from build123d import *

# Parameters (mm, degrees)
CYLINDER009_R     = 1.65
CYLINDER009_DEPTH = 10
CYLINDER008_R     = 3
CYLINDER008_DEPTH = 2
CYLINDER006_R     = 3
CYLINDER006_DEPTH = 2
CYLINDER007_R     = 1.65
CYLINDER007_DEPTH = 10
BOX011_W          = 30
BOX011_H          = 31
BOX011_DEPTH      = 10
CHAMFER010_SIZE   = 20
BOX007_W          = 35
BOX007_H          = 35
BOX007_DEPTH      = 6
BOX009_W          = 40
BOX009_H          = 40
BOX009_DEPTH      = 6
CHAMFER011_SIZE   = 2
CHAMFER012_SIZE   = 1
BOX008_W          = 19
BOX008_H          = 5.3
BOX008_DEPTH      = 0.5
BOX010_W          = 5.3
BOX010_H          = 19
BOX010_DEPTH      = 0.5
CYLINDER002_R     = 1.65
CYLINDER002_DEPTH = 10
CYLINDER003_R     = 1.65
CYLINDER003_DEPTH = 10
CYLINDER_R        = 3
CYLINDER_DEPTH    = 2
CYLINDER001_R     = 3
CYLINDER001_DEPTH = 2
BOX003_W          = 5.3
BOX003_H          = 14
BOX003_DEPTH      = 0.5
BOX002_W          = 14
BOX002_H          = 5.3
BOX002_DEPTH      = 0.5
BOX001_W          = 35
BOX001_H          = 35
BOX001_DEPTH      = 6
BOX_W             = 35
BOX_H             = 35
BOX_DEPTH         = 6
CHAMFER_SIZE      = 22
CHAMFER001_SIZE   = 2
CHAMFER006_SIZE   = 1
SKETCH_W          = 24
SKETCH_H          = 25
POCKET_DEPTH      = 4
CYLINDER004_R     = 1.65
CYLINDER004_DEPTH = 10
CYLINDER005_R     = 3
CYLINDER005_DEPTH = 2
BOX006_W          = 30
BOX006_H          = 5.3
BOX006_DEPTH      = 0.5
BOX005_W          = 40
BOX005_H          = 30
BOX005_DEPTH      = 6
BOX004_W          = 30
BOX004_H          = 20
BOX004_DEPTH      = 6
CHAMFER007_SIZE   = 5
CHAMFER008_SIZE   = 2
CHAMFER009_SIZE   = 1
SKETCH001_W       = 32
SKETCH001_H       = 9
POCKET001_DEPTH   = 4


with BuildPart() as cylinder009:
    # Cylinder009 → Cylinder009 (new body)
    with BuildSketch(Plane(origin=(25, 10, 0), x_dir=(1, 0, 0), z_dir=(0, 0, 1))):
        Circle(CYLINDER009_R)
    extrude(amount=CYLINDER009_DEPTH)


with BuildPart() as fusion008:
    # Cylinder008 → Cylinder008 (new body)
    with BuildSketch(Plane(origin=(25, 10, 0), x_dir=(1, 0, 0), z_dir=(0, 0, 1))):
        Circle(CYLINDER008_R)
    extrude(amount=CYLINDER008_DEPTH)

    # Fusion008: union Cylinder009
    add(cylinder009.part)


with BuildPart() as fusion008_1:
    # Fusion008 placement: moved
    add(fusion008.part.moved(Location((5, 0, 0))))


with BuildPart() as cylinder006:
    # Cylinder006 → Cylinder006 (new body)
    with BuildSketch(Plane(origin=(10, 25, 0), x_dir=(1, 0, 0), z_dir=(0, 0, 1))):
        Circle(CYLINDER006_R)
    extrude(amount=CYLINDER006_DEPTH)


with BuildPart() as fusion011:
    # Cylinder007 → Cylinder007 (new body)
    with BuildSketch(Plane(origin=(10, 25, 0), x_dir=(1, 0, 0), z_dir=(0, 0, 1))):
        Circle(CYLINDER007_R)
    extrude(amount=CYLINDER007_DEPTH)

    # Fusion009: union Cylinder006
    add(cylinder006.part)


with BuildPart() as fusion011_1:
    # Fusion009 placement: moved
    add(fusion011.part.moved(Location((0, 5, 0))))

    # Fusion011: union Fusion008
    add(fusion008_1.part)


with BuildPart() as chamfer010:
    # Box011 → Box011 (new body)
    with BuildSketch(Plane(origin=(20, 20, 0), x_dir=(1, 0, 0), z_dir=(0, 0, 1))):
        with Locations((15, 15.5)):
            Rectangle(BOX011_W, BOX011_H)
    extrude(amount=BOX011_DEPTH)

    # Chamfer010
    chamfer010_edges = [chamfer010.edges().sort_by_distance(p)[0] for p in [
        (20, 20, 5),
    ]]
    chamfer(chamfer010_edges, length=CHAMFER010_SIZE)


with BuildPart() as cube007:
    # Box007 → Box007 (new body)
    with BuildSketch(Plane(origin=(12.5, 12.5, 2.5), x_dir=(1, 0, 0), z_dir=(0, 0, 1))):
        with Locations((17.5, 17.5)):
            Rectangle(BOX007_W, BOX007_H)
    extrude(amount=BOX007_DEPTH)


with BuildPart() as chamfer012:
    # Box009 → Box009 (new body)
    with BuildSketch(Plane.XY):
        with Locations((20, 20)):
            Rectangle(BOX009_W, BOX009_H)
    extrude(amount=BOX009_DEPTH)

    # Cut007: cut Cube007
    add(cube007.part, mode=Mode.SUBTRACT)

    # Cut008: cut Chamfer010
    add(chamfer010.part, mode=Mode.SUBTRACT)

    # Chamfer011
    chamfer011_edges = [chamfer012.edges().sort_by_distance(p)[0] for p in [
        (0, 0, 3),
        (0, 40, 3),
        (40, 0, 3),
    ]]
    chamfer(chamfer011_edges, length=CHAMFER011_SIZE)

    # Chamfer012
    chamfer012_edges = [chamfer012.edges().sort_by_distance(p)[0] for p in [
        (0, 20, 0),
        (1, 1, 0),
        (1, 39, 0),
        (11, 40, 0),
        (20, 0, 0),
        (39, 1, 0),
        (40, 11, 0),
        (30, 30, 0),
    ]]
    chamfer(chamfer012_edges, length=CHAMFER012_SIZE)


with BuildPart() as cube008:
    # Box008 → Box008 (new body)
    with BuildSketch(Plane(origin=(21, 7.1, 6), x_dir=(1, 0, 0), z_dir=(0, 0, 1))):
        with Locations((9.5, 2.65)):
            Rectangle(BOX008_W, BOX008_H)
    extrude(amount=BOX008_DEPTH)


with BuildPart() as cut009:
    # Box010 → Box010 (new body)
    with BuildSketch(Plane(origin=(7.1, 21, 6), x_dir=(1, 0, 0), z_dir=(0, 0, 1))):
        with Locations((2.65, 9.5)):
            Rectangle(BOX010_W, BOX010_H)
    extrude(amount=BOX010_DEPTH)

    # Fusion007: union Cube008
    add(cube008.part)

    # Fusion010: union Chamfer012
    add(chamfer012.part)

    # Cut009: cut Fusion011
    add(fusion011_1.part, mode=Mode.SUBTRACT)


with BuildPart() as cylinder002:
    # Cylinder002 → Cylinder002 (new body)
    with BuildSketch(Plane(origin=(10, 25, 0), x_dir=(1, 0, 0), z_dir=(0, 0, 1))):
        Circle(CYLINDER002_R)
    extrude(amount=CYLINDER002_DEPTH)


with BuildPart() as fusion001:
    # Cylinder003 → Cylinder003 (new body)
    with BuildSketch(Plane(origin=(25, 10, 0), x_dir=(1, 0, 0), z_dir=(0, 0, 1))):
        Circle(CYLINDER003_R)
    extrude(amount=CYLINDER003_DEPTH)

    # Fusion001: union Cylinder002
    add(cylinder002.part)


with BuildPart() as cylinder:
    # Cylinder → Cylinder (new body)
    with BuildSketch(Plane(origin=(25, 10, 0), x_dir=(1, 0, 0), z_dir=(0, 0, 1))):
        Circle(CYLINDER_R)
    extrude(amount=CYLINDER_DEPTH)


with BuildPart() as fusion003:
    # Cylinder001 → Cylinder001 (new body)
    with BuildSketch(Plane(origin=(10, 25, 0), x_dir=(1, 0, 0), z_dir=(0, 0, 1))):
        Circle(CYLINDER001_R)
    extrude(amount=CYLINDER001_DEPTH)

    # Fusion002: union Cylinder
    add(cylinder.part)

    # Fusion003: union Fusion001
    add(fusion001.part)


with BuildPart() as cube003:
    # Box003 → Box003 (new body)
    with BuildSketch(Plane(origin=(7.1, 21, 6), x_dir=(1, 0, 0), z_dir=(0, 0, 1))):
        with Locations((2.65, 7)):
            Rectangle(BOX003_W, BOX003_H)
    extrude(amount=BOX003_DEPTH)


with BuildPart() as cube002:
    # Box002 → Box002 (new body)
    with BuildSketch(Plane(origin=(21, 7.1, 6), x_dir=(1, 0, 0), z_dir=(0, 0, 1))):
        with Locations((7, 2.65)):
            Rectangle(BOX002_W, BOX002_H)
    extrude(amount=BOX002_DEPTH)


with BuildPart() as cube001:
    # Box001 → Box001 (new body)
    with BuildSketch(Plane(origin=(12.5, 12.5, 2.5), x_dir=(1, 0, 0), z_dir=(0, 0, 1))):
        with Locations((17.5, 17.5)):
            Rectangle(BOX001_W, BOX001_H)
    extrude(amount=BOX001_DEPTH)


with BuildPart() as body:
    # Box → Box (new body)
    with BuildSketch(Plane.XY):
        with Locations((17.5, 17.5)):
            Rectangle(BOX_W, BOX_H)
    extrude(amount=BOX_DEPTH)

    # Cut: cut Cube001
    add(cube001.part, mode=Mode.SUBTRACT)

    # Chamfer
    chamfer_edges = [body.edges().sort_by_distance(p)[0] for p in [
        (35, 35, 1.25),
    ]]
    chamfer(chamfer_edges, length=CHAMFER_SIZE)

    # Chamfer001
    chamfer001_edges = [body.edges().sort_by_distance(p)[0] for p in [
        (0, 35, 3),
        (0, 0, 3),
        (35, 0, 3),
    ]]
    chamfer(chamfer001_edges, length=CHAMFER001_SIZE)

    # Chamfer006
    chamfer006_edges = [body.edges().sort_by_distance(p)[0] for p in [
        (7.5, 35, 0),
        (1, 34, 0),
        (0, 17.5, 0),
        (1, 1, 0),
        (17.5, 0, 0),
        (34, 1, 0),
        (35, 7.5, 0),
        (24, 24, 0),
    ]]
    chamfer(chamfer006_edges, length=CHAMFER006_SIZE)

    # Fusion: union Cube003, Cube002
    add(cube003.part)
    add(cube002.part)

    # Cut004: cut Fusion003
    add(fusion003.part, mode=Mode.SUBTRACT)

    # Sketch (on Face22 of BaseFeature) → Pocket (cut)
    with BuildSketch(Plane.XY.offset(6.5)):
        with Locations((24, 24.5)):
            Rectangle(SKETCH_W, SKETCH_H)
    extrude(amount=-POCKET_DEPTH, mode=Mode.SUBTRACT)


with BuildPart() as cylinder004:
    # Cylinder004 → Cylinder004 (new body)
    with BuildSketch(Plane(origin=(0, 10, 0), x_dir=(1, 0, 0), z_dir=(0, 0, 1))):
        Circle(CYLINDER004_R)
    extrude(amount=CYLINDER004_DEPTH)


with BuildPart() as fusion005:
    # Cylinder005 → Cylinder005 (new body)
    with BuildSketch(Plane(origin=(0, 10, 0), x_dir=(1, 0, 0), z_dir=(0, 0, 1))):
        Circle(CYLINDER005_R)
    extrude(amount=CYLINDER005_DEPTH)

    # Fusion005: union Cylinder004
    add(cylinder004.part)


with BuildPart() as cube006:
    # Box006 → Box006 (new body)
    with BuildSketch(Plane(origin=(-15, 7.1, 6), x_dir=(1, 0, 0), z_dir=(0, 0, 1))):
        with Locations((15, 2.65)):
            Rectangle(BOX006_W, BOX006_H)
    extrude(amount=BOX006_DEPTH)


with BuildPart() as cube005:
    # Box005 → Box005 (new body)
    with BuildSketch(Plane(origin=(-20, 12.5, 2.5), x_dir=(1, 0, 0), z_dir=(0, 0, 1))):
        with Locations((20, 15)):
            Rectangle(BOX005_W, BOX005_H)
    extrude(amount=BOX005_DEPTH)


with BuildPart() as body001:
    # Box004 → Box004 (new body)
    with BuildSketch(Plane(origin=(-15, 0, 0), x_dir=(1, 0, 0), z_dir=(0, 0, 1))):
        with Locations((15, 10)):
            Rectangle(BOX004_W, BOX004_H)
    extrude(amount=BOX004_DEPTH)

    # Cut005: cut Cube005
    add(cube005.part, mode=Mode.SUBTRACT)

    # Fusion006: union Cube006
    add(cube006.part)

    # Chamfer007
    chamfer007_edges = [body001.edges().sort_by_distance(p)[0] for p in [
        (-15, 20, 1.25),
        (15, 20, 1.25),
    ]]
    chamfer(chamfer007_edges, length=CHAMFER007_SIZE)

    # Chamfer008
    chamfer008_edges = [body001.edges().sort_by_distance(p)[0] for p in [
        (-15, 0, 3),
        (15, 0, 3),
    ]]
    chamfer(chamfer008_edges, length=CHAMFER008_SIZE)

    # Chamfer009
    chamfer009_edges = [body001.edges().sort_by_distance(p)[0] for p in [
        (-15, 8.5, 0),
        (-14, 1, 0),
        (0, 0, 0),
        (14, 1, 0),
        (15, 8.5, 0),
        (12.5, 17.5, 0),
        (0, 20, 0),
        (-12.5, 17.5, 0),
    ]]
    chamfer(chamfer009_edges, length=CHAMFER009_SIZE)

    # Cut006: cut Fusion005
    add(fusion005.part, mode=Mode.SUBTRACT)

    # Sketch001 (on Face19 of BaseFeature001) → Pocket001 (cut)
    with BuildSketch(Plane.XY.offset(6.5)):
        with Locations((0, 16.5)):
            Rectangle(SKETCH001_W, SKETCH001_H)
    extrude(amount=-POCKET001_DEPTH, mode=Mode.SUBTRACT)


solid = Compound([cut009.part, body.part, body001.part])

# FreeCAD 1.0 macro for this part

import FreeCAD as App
import Part
import Sketcher
from FreeCAD import Vector
Q = App.Units.Quantity


def edges_at(feature, points):
    """Names of the edges that pass closest to the given points."""
    edges = feature.Shape.Edges
    near = lambda p: min(range(len(edges)), key=lambda i: edges[i].distToShape(Part.Vertex(*p))[0])
    return sorted({f"Edge{near(p) + 1}" for p in points})


def add_polygon(sketch, points):
    """Adds a closed chain of lines whose ends are joined by coincident constraints."""
    first, n = sketch.GeometryCount, len(points)
    for a, b in zip(points, points[1:] + points[:1]):
        sketch.addGeometry(Part.LineSegment(App.Vector(*a, 0), App.Vector(*b, 0)), False)
    for i in range(n):
        sketch.addConstraint(Sketcher.Constraint("Coincident", first + i, 2, first + (i + 1) % n, 1))

doc = App.newDocument("Part")
body = doc.addObject("PartDesign::Body", "Body")

# Sketch on XY plane
sketch1 = doc.addObject("Sketcher::SketchObject", "Sketch")
body.addObject(sketch1)
sketch1.AttachmentSupport = (doc.XY_Plane, [""])
sketch1.MapMode = "FlatFace"
sketch1.addGeometry(Part.Circle(Vector(25, 10, 0), Vector(0, 0, 1), 1.6), False)
sketch1.addConstraint(Sketcher.Constraint("Diameter", 0, Q("3.3 mm")))
sketch1.addConstraint(Sketcher.Constraint("DistanceX", -1, 1, 0, 3, Q("25 mm")))
sketch1.addConstraint(Sketcher.Constraint("DistanceY", -1, 1, 0, 3, Q("10 mm")))
pad1 = doc.addObject("PartDesign::Pad", "Pad")
body.addObject(pad1)
pad1.Profile = sketch1
pad1.Length = 10
body2 = doc.addObject("PartDesign::Body", "Body001")

# Sketch on XY plane
sketch2 = doc.addObject("Sketcher::SketchObject", "Sketch001")
body2.addObject(sketch2)
sketch2.AttachmentSupport = (doc.getObject("XY_Plane001"), [""])
sketch2.MapMode = "FlatFace"
sketch2.addGeometry(Part.Circle(Vector(25, 10, 0), Vector(0, 0, 1), 3), False)
sketch2.addConstraint(Sketcher.Constraint("Diameter", 0, Q("6 mm")))
sketch2.addConstraint(Sketcher.Constraint("DistanceX", -1, 1, 0, 3, Q("25 mm")))
sketch2.addConstraint(Sketcher.Constraint("DistanceY", -1, 1, 0, 3, Q("10 mm")))
pad2 = doc.addObject("PartDesign::Pad", "Pad001")
body2.addObject(pad2)
pad2.Profile = sketch2
pad2.Length = 2
doc.recompute()

boolean = doc.addObject("PartDesign::Boolean", "Boolean")
body2.addObject(boolean)
boolean.Type = "Fuse"
boolean.addObjects([body])
body3 = doc.addObject("PartDesign::Body", "Body002")
doc.recompute()

body2.Placement = App.Placement(Vector(5, 0, 0), App.Rotation(Vector(0, 0, 1), 0))
boolean2 = doc.addObject("PartDesign::Boolean", "Boolean001")
body3.addObject(boolean2)
boolean2.Type = "Fuse"
boolean2.addObjects([body2])
body4 = doc.addObject("PartDesign::Body", "Body003")

# Sketch on XY plane
sketch3 = doc.addObject("Sketcher::SketchObject", "Sketch002")
body4.addObject(sketch3)
sketch3.AttachmentSupport = (doc.getObject("XY_Plane003"), [""])
sketch3.MapMode = "FlatFace"
sketch3.addGeometry(Part.Circle(Vector(10, 25, 0), Vector(0, 0, 1), 3), False)
sketch3.addConstraint(Sketcher.Constraint("Diameter", 0, Q("6 mm")))
sketch3.addConstraint(Sketcher.Constraint("DistanceX", -1, 1, 0, 3, Q("10 mm")))
sketch3.addConstraint(Sketcher.Constraint("DistanceY", -1, 1, 0, 3, Q("25 mm")))
pad3 = doc.addObject("PartDesign::Pad", "Pad002")
body4.addObject(pad3)
pad3.Profile = sketch3
pad3.Length = 2
body5 = doc.addObject("PartDesign::Body", "Body004")

# Sketch on XY plane
sketch4 = doc.addObject("Sketcher::SketchObject", "Sketch003")
body5.addObject(sketch4)
sketch4.AttachmentSupport = (doc.getObject("XY_Plane004"), [""])
sketch4.MapMode = "FlatFace"
sketch4.addGeometry(Part.Circle(Vector(10, 25, 0), Vector(0, 0, 1), 1.6), False)
sketch4.addConstraint(Sketcher.Constraint("Diameter", 0, Q("3.3 mm")))
sketch4.addConstraint(Sketcher.Constraint("DistanceX", -1, 1, 0, 3, Q("10 mm")))
sketch4.addConstraint(Sketcher.Constraint("DistanceY", -1, 1, 0, 3, Q("25 mm")))
pad4 = doc.addObject("PartDesign::Pad", "Pad003")
body5.addObject(pad4)
pad4.Profile = sketch4
pad4.Length = 10
doc.recompute()

boolean3 = doc.addObject("PartDesign::Boolean", "Boolean002")
body5.addObject(boolean3)
boolean3.Type = "Fuse"
boolean3.addObjects([body4])
body6 = doc.addObject("PartDesign::Body", "Body005")
body6.AllowCompound = True
doc.recompute()

body5.Placement = App.Placement(Vector(0, 5, 0), App.Rotation(Vector(0, 0, 1), 0))
boolean4 = doc.addObject("PartDesign::Boolean", "Boolean003")
body6.addObject(boolean4)
boolean4.Type = "Fuse"
boolean4.addObjects([body5])
doc.recompute()

boolean5 = doc.addObject("PartDesign::Boolean", "Boolean004")
body6.addObject(boolean5)
boolean5.Type = "Fuse"
boolean5.addObjects([body3])
body7 = doc.addObject("PartDesign::Body", "Body006")

# Sketch on XY plane
sketch5 = doc.addObject("Sketcher::SketchObject", "Sketch004")
body7.addObject(sketch5)
sketch5.AttachmentSupport = (doc.getObject("XY_Plane006"), [""])
sketch5.MapMode = "FlatFace"
add_polygon(sketch5, [(20, 51), (20, 20), (50, 20), (50, 51)])  # lines 0-3
sketch5.addConstraint(Sketcher.Constraint("Vertical", 0))
sketch5.addConstraint(Sketcher.Constraint("Horizontal", 1))
sketch5.addConstraint(Sketcher.Constraint("Vertical", 2))
sketch5.addConstraint(Sketcher.Constraint("Horizontal", 3))
sketch5.addConstraint(Sketcher.Constraint("DistanceX", 1, 1, 1, 2, Q("30 mm")))
sketch5.addConstraint(Sketcher.Constraint("DistanceY", 0, 2, 0, 1, Q("31 mm")))
sketch5.addConstraint(Sketcher.Constraint("DistanceX", -1, 1, 0, 2, Q("20 mm")))
sketch5.addConstraint(Sketcher.Constraint("DistanceY", -1, 1, 0, 2, Q("20 mm")))
pad5 = doc.addObject("PartDesign::Pad", "Pad004")
body7.addObject(pad5)
pad5.Profile = sketch5
pad5.Length = 10
doc.recompute()

chamfer = doc.addObject("PartDesign::Chamfer", "Chamfer")
body7.addObject(chamfer)
chamfer.Base = (pad5, edges_at(pad5, [(20, 20, 5)]))
chamfer.Size = 20
body8 = doc.addObject("PartDesign::Body", "Body007")

# Sketch on XY plane
sketch6 = doc.addObject("Sketcher::SketchObject", "Sketch005")
body8.addObject(sketch6)
sketch6.AttachmentSupport = (doc.getObject("XY_Plane007"), [""])
sketch6.MapMode = "FlatFace"
sketch6.AttachmentOffset = App.Placement(Vector(0, 0, 2.5), App.Rotation())
add_polygon(sketch6, [(12, 48), (12, 12), (48, 12), (48, 48)])  # lines 0-3
sketch6.addConstraint(Sketcher.Constraint("Vertical", 0))
sketch6.addConstraint(Sketcher.Constraint("Horizontal", 1))
sketch6.addConstraint(Sketcher.Constraint("Vertical", 2))
sketch6.addConstraint(Sketcher.Constraint("Horizontal", 3))
sketch6.addConstraint(Sketcher.Constraint("Equal", 3, 0))
sketch6.addConstraint(Sketcher.Constraint("DistanceX", 1, 1, 1, 2, Q("35 mm")))
sketch6.addConstraint(Sketcher.Constraint("DistanceX", -1, 1, 0, 2, Q("12.5 mm")))
sketch6.addConstraint(Sketcher.Constraint("DistanceY", -1, 1, 0, 2, Q("12.5 mm")))
pad6 = doc.addObject("PartDesign::Pad", "Pad005")
body8.addObject(pad6)
pad6.Profile = sketch6
pad6.Length = 6
body9 = doc.addObject("PartDesign::Body", "Body008")

# Sketch on XY plane
sketch7 = doc.addObject("Sketcher::SketchObject", "Sketch006")
body9.addObject(sketch7)
sketch7.AttachmentSupport = (doc.getObject("XY_Plane008"), [""])
sketch7.MapMode = "FlatFace"
add_polygon(sketch7, [(0, 40), (0, 0), (40, 0), (40, 40)])  # lines 0-3
sketch7.addConstraint(Sketcher.Constraint("Vertical", 0))
sketch7.addConstraint(Sketcher.Constraint("Horizontal", 1))
sketch7.addConstraint(Sketcher.Constraint("Vertical", 2))
sketch7.addConstraint(Sketcher.Constraint("Horizontal", 3))
sketch7.addConstraint(Sketcher.Constraint("Coincident", 0, 2, -1, 1))
sketch7.addConstraint(Sketcher.Constraint("Equal", 3, 0))
sketch7.addConstraint(Sketcher.Constraint("DistanceX", 1, 1, 1, 2, Q("40 mm")))
pad7 = doc.addObject("PartDesign::Pad", "Pad006")
body9.addObject(pad7)
pad7.Profile = sketch7
pad7.Length = 6
doc.recompute()

boolean6 = doc.addObject("PartDesign::Boolean", "Boolean005")
body9.addObject(boolean6)
boolean6.Type = "Cut"
boolean6.addObjects([body8])
doc.recompute()

boolean7 = doc.addObject("PartDesign::Boolean", "Boolean006")
body9.addObject(boolean7)
boolean7.Type = "Cut"
boolean7.addObjects([body7])
doc.recompute()

chamfer2 = doc.addObject("PartDesign::Chamfer", "Chamfer001")
body9.addObject(chamfer2)
chamfer2.Base = (boolean7, edges_at(boolean7, [(0, 0, 3), (0, 40, 3), (40, 0, 3)]))
chamfer2.Size = 2
doc.recompute()

chamfer3 = doc.addObject("PartDesign::Chamfer", "Chamfer002")
body9.addObject(chamfer3)
chamfer3.Base = (chamfer2, edges_at(chamfer2, [
    (0, 20, 0),
    (1, 1, 0),
    (1, 39, 0),
    (11, 40, 0),
    (20, 0, 0),
    (39, 1, 0),
    (40, 11, 0),
    (30, 30, 0),
]))
chamfer3.Size = 1
body10 = doc.addObject("PartDesign::Body", "Body009")

# Sketch on XY plane
sketch8 = doc.addObject("Sketcher::SketchObject", "Sketch007")
body10.addObject(sketch8)
sketch8.AttachmentSupport = (doc.getObject("XY_Plane009"), [""])
sketch8.MapMode = "FlatFace"
sketch8.AttachmentOffset = App.Placement(Vector(0, 0, 6), App.Rotation())
add_polygon(sketch8, [(21, 12), (21, 7), (40, 7), (40, 12)])  # lines 0-3
sketch8.addConstraint(Sketcher.Constraint("Vertical", 0))
sketch8.addConstraint(Sketcher.Constraint("Horizontal", 1))
sketch8.addConstraint(Sketcher.Constraint("Vertical", 2))
sketch8.addConstraint(Sketcher.Constraint("Horizontal", 3))
sketch8.addConstraint(Sketcher.Constraint("DistanceX", 1, 1, 1, 2, Q("19 mm")))
sketch8.addConstraint(Sketcher.Constraint("DistanceY", 0, 2, 0, 1, Q("5.3 mm")))
sketch8.addConstraint(Sketcher.Constraint("DistanceX", -1, 1, 0, 2, Q("21 mm")))
sketch8.addConstraint(Sketcher.Constraint("DistanceY", -1, 1, 0, 2, Q("7.1 mm")))
pad8 = doc.addObject("PartDesign::Pad", "Pad007")
body10.addObject(pad8)
pad8.Profile = sketch8
pad8.Length = 0.5
body11 = doc.addObject("PartDesign::Body", "Body010")
body11.AllowCompound = True

# Sketch on XY plane
sketch9 = doc.addObject("Sketcher::SketchObject", "Sketch008")
body11.addObject(sketch9)
sketch9.AttachmentSupport = (doc.getObject("XY_Plane010"), [""])
sketch9.MapMode = "FlatFace"
sketch9.AttachmentOffset = App.Placement(Vector(0, 0, 6), App.Rotation())
add_polygon(sketch9, [(7, 40), (7, 21), (12, 21), (12, 40)])  # lines 0-3
sketch9.addConstraint(Sketcher.Constraint("Vertical", 0))
sketch9.addConstraint(Sketcher.Constraint("Horizontal", 1))
sketch9.addConstraint(Sketcher.Constraint("Vertical", 2))
sketch9.addConstraint(Sketcher.Constraint("Horizontal", 3))
sketch9.addConstraint(Sketcher.Constraint("DistanceY", 0, 2, 0, 1, Q("19 mm")))
sketch9.addConstraint(Sketcher.Constraint("DistanceX", 1, 1, 1, 2, Q("5.3 mm")))
sketch9.addConstraint(Sketcher.Constraint("DistanceY", -1, 1, 0, 2, Q("21 mm")))
sketch9.addConstraint(Sketcher.Constraint("DistanceX", -1, 1, 0, 2, Q("7.1 mm")))
pad9 = doc.addObject("PartDesign::Pad", "Pad008")
body11.addObject(pad9)
pad9.Profile = sketch9
pad9.Length = 0.5
doc.recompute()

boolean8 = doc.addObject("PartDesign::Boolean", "Boolean007")
body11.addObject(boolean8)
boolean8.Type = "Fuse"
boolean8.addObjects([body10])
doc.recompute()

boolean9 = doc.addObject("PartDesign::Boolean", "Boolean008")
body11.addObject(boolean9)
boolean9.Type = "Fuse"
boolean9.addObjects([body9])
doc.recompute()

boolean10 = doc.addObject("PartDesign::Boolean", "Boolean009")
body11.addObject(boolean10)
boolean10.Type = "Cut"
boolean10.addObjects([body6])
body12 = doc.addObject("PartDesign::Body", "Body011")

# Sketch on XY plane
sketch10 = doc.addObject("Sketcher::SketchObject", "Sketch009")
body12.addObject(sketch10)
sketch10.AttachmentSupport = (doc.getObject("XY_Plane011"), [""])
sketch10.MapMode = "FlatFace"
sketch10.addGeometry(Part.Circle(Vector(10, 25, 0), Vector(0, 0, 1), 1.6), False)
sketch10.addConstraint(Sketcher.Constraint("Diameter", 0, Q("3.3 mm")))
sketch10.addConstraint(Sketcher.Constraint("DistanceX", -1, 1, 0, 3, Q("10 mm")))
sketch10.addConstraint(Sketcher.Constraint("DistanceY", -1, 1, 0, 3, Q("25 mm")))
pad10 = doc.addObject("PartDesign::Pad", "Pad009")
body12.addObject(pad10)
pad10.Profile = sketch10
pad10.Length = 10
body13 = doc.addObject("PartDesign::Body", "Body012")
body13.AllowCompound = True

# Sketch on XY plane
sketch11 = doc.addObject("Sketcher::SketchObject", "Sketch010")
body13.addObject(sketch11)
sketch11.AttachmentSupport = (doc.getObject("XY_Plane012"), [""])
sketch11.MapMode = "FlatFace"
sketch11.addGeometry(Part.Circle(Vector(25, 10, 0), Vector(0, 0, 1), 1.6), False)
sketch11.addConstraint(Sketcher.Constraint("Diameter", 0, Q("3.3 mm")))
sketch11.addConstraint(Sketcher.Constraint("DistanceX", -1, 1, 0, 3, Q("25 mm")))
sketch11.addConstraint(Sketcher.Constraint("DistanceY", -1, 1, 0, 3, Q("10 mm")))
pad11 = doc.addObject("PartDesign::Pad", "Pad010")
body13.addObject(pad11)
pad11.Profile = sketch11
pad11.Length = 10
doc.recompute()

boolean11 = doc.addObject("PartDesign::Boolean", "Boolean010")
body13.addObject(boolean11)
boolean11.Type = "Fuse"
boolean11.addObjects([body12])
body14 = doc.addObject("PartDesign::Body", "Body013")

# Sketch on XY plane
sketch12 = doc.addObject("Sketcher::SketchObject", "Sketch011")
body14.addObject(sketch12)
sketch12.AttachmentSupport = (doc.getObject("XY_Plane013"), [""])
sketch12.MapMode = "FlatFace"
sketch12.addGeometry(Part.Circle(Vector(25, 10, 0), Vector(0, 0, 1), 3), False)
sketch12.addConstraint(Sketcher.Constraint("Diameter", 0, Q("6 mm")))
sketch12.addConstraint(Sketcher.Constraint("DistanceX", -1, 1, 0, 3, Q("25 mm")))
sketch12.addConstraint(Sketcher.Constraint("DistanceY", -1, 1, 0, 3, Q("10 mm")))
pad12 = doc.addObject("PartDesign::Pad", "Pad011")
body14.addObject(pad12)
pad12.Profile = sketch12
pad12.Length = 2
body15 = doc.addObject("PartDesign::Body", "Body014")
body15.AllowCompound = True

# Sketch on XY plane
sketch13 = doc.addObject("Sketcher::SketchObject", "Sketch012")
body15.addObject(sketch13)
sketch13.AttachmentSupport = (doc.getObject("XY_Plane014"), [""])
sketch13.MapMode = "FlatFace"
sketch13.addGeometry(Part.Circle(Vector(10, 25, 0), Vector(0, 0, 1), 3), False)
sketch13.addConstraint(Sketcher.Constraint("Diameter", 0, Q("6 mm")))
sketch13.addConstraint(Sketcher.Constraint("DistanceX", -1, 1, 0, 3, Q("10 mm")))
sketch13.addConstraint(Sketcher.Constraint("DistanceY", -1, 1, 0, 3, Q("25 mm")))
pad13 = doc.addObject("PartDesign::Pad", "Pad012")
body15.addObject(pad13)
pad13.Profile = sketch13
pad13.Length = 2
doc.recompute()

boolean12 = doc.addObject("PartDesign::Boolean", "Boolean011")
body15.addObject(boolean12)
boolean12.Type = "Fuse"
boolean12.addObjects([body14])
doc.recompute()

boolean13 = doc.addObject("PartDesign::Boolean", "Boolean012")
body15.addObject(boolean13)
boolean13.Type = "Fuse"
boolean13.addObjects([body13])
body16 = doc.addObject("PartDesign::Body", "Body015")

# Sketch on XY plane
sketch14 = doc.addObject("Sketcher::SketchObject", "Sketch013")
body16.addObject(sketch14)
sketch14.AttachmentSupport = (doc.getObject("XY_Plane015"), [""])
sketch14.MapMode = "FlatFace"
sketch14.AttachmentOffset = App.Placement(Vector(0, 0, 6), App.Rotation())
add_polygon(sketch14, [(7, 35), (7, 21), (12, 21), (12, 35)])  # lines 0-3
sketch14.addConstraint(Sketcher.Constraint("Vertical", 0))
sketch14.addConstraint(Sketcher.Constraint("Horizontal", 1))
sketch14.addConstraint(Sketcher.Constraint("Vertical", 2))
sketch14.addConstraint(Sketcher.Constraint("Horizontal", 3))
sketch14.addConstraint(Sketcher.Constraint("DistanceY", 0, 2, 0, 1, Q("14 mm")))
sketch14.addConstraint(Sketcher.Constraint("DistanceX", 1, 1, 1, 2, Q("5.3 mm")))
sketch14.addConstraint(Sketcher.Constraint("DistanceY", -1, 1, 0, 2, Q("21 mm")))
sketch14.addConstraint(Sketcher.Constraint("DistanceX", -1, 1, 0, 2, Q("7.1 mm")))
pad14 = doc.addObject("PartDesign::Pad", "Pad013")
body16.addObject(pad14)
pad14.Profile = sketch14
pad14.Length = 0.5
body17 = doc.addObject("PartDesign::Body", "Body016")

# Sketch on XY plane
sketch15 = doc.addObject("Sketcher::SketchObject", "Sketch014")
body17.addObject(sketch15)
sketch15.AttachmentSupport = (doc.getObject("XY_Plane016"), [""])
sketch15.MapMode = "FlatFace"
sketch15.AttachmentOffset = App.Placement(Vector(0, 0, 6), App.Rotation())
add_polygon(sketch15, [(21, 12), (21, 7), (35, 7), (35, 12)])  # lines 0-3
sketch15.addConstraint(Sketcher.Constraint("Vertical", 0))
sketch15.addConstraint(Sketcher.Constraint("Horizontal", 1))
sketch15.addConstraint(Sketcher.Constraint("Vertical", 2))
sketch15.addConstraint(Sketcher.Constraint("Horizontal", 3))
sketch15.addConstraint(Sketcher.Constraint("DistanceX", 1, 1, 1, 2, Q("14 mm")))
sketch15.addConstraint(Sketcher.Constraint("DistanceY", 0, 2, 0, 1, Q("5.3 mm")))
sketch15.addConstraint(Sketcher.Constraint("DistanceX", -1, 1, 0, 2, Q("21 mm")))
sketch15.addConstraint(Sketcher.Constraint("DistanceY", -1, 1, 0, 2, Q("7.1 mm")))
pad15 = doc.addObject("PartDesign::Pad", "Pad014")
body17.addObject(pad15)
pad15.Profile = sketch15
pad15.Length = 0.5
body18 = doc.addObject("PartDesign::Body", "Body017")

# Sketch on XY plane
sketch16 = doc.addObject("Sketcher::SketchObject", "Sketch015")
body18.addObject(sketch16)
sketch16.AttachmentSupport = (doc.getObject("XY_Plane017"), [""])
sketch16.MapMode = "FlatFace"
sketch16.AttachmentOffset = App.Placement(Vector(0, 0, 2.5), App.Rotation())
add_polygon(sketch16, [(12, 48), (12, 12), (48, 12), (48, 48)])  # lines 0-3
sketch16.addConstraint(Sketcher.Constraint("Vertical", 0))
sketch16.addConstraint(Sketcher.Constraint("Horizontal", 1))
sketch16.addConstraint(Sketcher.Constraint("Vertical", 2))
sketch16.addConstraint(Sketcher.Constraint("Horizontal", 3))
sketch16.addConstraint(Sketcher.Constraint("Equal", 3, 0))
sketch16.addConstraint(Sketcher.Constraint("DistanceX", 1, 1, 1, 2, Q("35 mm")))
sketch16.addConstraint(Sketcher.Constraint("DistanceX", -1, 1, 0, 2, Q("12.5 mm")))
sketch16.addConstraint(Sketcher.Constraint("DistanceY", -1, 1, 0, 2, Q("12.5 mm")))
pad16 = doc.addObject("PartDesign::Pad", "Pad015")
body18.addObject(pad16)
pad16.Profile = sketch16
pad16.Length = 6
body19 = doc.addObject("PartDesign::Body", "Body018")

# Sketch on XY plane
sketch17 = doc.addObject("Sketcher::SketchObject", "Sketch016")
body19.addObject(sketch17)
sketch17.AttachmentSupport = (doc.getObject("XY_Plane018"), [""])
sketch17.MapMode = "FlatFace"
add_polygon(sketch17, [(0, 35), (0, 0), (35, 0), (35, 35)])  # lines 0-3
sketch17.addConstraint(Sketcher.Constraint("Vertical", 0))
sketch17.addConstraint(Sketcher.Constraint("Horizontal", 1))
sketch17.addConstraint(Sketcher.Constraint("Vertical", 2))
sketch17.addConstraint(Sketcher.Constraint("Horizontal", 3))
sketch17.addConstraint(Sketcher.Constraint("Coincident", 0, 2, -1, 1))
sketch17.addConstraint(Sketcher.Constraint("Equal", 3, 0))
sketch17.addConstraint(Sketcher.Constraint("DistanceX", 1, 1, 1, 2, Q("35 mm")))
pad17 = doc.addObject("PartDesign::Pad", "Pad016")
body19.addObject(pad17)
pad17.Profile = sketch17
pad17.Length = 6
doc.recompute()

boolean14 = doc.addObject("PartDesign::Boolean", "Boolean013")
body19.addObject(boolean14)
boolean14.Type = "Cut"
boolean14.addObjects([body18])
doc.recompute()

chamfer4 = doc.addObject("PartDesign::Chamfer", "Chamfer003")
body19.addObject(chamfer4)
chamfer4.Base = (boolean14, edges_at(boolean14, [(35, 35, 1.25)]))
chamfer4.Size = 22
doc.recompute()

chamfer5 = doc.addObject("PartDesign::Chamfer", "Chamfer004")
body19.addObject(chamfer5)
chamfer5.Base = (chamfer4, edges_at(chamfer4, [(0, 35, 3), (0, 0, 3), (35, 0, 3)]))
chamfer5.Size = 2
doc.recompute()

chamfer6 = doc.addObject("PartDesign::Chamfer", "Chamfer005")
body19.addObject(chamfer6)
chamfer6.Base = (chamfer5, edges_at(chamfer5, [
    (7.5, 35, 0),
    (1, 34, 0),
    (0, 17.5, 0),
    (1, 1, 0),
    (17.5, 0, 0),
    (34, 1, 0),
    (35, 7.5, 0),
    (24, 24, 0),
]))
chamfer6.Size = 1
doc.recompute()

boolean15 = doc.addObject("PartDesign::Boolean", "Boolean014")
body19.addObject(boolean15)
boolean15.Type = "Fuse"
boolean15.addObjects([body16])
doc.recompute()

boolean16 = doc.addObject("PartDesign::Boolean", "Boolean015")
body19.addObject(boolean16)
boolean16.Type = "Fuse"
boolean16.addObjects([body17])
doc.recompute()

boolean17 = doc.addObject("PartDesign::Boolean", "Boolean016")
body19.addObject(boolean17)
boolean17.Type = "Cut"
boolean17.addObjects([body15])

# Sketch on XY plane
sketch18 = doc.addObject("Sketcher::SketchObject", "Sketch017")
body19.addObject(sketch18)
sketch18.AttachmentSupport = (doc.getObject("XY_Plane018"), [""])
sketch18.MapMode = "FlatFace"
sketch18.AttachmentOffset = App.Placement(Vector(0, 0, 6.5), App.Rotation())
add_polygon(sketch18, [(12, 37), (12, 12), (36, 12), (36, 37)])  # lines 0-3
sketch18.addConstraint(Sketcher.Constraint("Vertical", 0))
sketch18.addConstraint(Sketcher.Constraint("Horizontal", 1))
sketch18.addConstraint(Sketcher.Constraint("Vertical", 2))
sketch18.addConstraint(Sketcher.Constraint("Horizontal", 3))
sketch18.addConstraint(Sketcher.Constraint("DistanceX", 1, 1, 1, 2, Q("24 mm")))
sketch18.addConstraint(Sketcher.Constraint("DistanceY", 0, 2, 0, 1, Q("25 mm")))
sketch18.addConstraint(Sketcher.Constraint("DistanceX", -1, 1, 0, 2, Q("12 mm")))
sketch18.addConstraint(Sketcher.Constraint("DistanceY", -1, 1, 0, 2, Q("12 mm")))
pocket1 = doc.addObject("PartDesign::Pocket", "Pocket")
body19.addObject(pocket1)
pocket1.Profile = sketch18
pocket1.Length = 4
body20 = doc.addObject("PartDesign::Body", "Body019")

# Sketch on XY plane
sketch19 = doc.addObject("Sketcher::SketchObject", "Sketch018")
body20.addObject(sketch19)
sketch19.AttachmentSupport = (doc.getObject("XY_Plane019"), [""])
sketch19.MapMode = "FlatFace"
sketch19.addGeometry(Part.Circle(Vector(0, 10, 0), Vector(0, 0, 1), 1.6), False)
sketch19.addConstraint(Sketcher.Constraint("PointOnObject", 0, 3, -2))
sketch19.addConstraint(Sketcher.Constraint("Diameter", 0, Q("3.3 mm")))
sketch19.addConstraint(Sketcher.Constraint("DistanceY", -1, 1, 0, 3, Q("10 mm")))
pad18 = doc.addObject("PartDesign::Pad", "Pad017")
body20.addObject(pad18)
pad18.Profile = sketch19
pad18.Length = 10
body21 = doc.addObject("PartDesign::Body", "Body020")

# Sketch on XY plane
sketch20 = doc.addObject("Sketcher::SketchObject", "Sketch019")
body21.addObject(sketch20)
sketch20.AttachmentSupport = (doc.getObject("XY_Plane020"), [""])
sketch20.MapMode = "FlatFace"
sketch20.addGeometry(Part.Circle(Vector(0, 10, 0), Vector(0, 0, 1), 3), False)
sketch20.addConstraint(Sketcher.Constraint("PointOnObject", 0, 3, -2))
sketch20.addConstraint(Sketcher.Constraint("Diameter", 0, Q("6 mm")))
sketch20.addConstraint(Sketcher.Constraint("DistanceY", -1, 1, 0, 3, Q("10 mm")))
pad19 = doc.addObject("PartDesign::Pad", "Pad018")
body21.addObject(pad19)
pad19.Profile = sketch20
pad19.Length = 2
doc.recompute()

boolean18 = doc.addObject("PartDesign::Boolean", "Boolean017")
body21.addObject(boolean18)
boolean18.Type = "Fuse"
boolean18.addObjects([body20])
body22 = doc.addObject("PartDesign::Body", "Body021")

# Sketch on XY plane
sketch21 = doc.addObject("Sketcher::SketchObject", "Sketch020")
body22.addObject(sketch21)
sketch21.AttachmentSupport = (doc.getObject("XY_Plane021"), [""])
sketch21.MapMode = "FlatFace"
sketch21.AttachmentOffset = App.Placement(Vector(0, 0, 6), App.Rotation())
add_polygon(sketch21, [(-15, 12), (-15, 7), (15, 7), (15, 12)])  # lines 0-3
sketch21.addConstraint(Sketcher.Constraint("Vertical", 0))
sketch21.addConstraint(Sketcher.Constraint("Horizontal", 1))
sketch21.addConstraint(Sketcher.Constraint("Vertical", 2))
sketch21.addConstraint(Sketcher.Constraint("Horizontal", 3))
sketch21.addConstraint(Sketcher.Constraint("DistanceX", 1, 1, 1, 2, Q("30 mm")))
sketch21.addConstraint(Sketcher.Constraint("DistanceY", 0, 2, 0, 1, Q("5.3 mm")))
sketch21.addConstraint(Sketcher.Constraint("DistanceX", 0, 2, -1, 1, Q("15 mm")))
sketch21.addConstraint(Sketcher.Constraint("DistanceY", -1, 1, 0, 2, Q("7.1 mm")))
pad20 = doc.addObject("PartDesign::Pad", "Pad019")
body22.addObject(pad20)
pad20.Profile = sketch21
pad20.Length = 0.5
body23 = doc.addObject("PartDesign::Body", "Body022")

# Sketch on XY plane
sketch22 = doc.addObject("Sketcher::SketchObject", "Sketch021")
body23.addObject(sketch22)
sketch22.AttachmentSupport = (doc.getObject("XY_Plane022"), [""])
sketch22.MapMode = "FlatFace"
sketch22.AttachmentOffset = App.Placement(Vector(0, 0, 2.5), App.Rotation())
add_polygon(sketch22, [(-20, 42), (-20, 12), (20, 12), (20, 42)])  # lines 0-3
sketch22.addConstraint(Sketcher.Constraint("Vertical", 0))
sketch22.addConstraint(Sketcher.Constraint("Horizontal", 1))
sketch22.addConstraint(Sketcher.Constraint("Vertical", 2))
sketch22.addConstraint(Sketcher.Constraint("Horizontal", 3))
sketch22.addConstraint(Sketcher.Constraint("DistanceX", 1, 1, 1, 2, Q("40 mm")))
sketch22.addConstraint(Sketcher.Constraint("DistanceY", 0, 2, 0, 1, Q("30 mm")))
sketch22.addConstraint(Sketcher.Constraint("DistanceX", 0, 2, -1, 1, Q("20 mm")))
sketch22.addConstraint(Sketcher.Constraint("DistanceY", -1, 1, 0, 2, Q("12.5 mm")))
pad21 = doc.addObject("PartDesign::Pad", "Pad020")
body23.addObject(pad21)
pad21.Profile = sketch22
pad21.Length = 6
body24 = doc.addObject("PartDesign::Body", "Body023")

# Sketch on XY plane
sketch23 = doc.addObject("Sketcher::SketchObject", "Sketch022")
body24.addObject(sketch23)
sketch23.AttachmentSupport = (doc.getObject("XY_Plane023"), [""])
sketch23.MapMode = "FlatFace"
add_polygon(sketch23, [(-15, 20), (-15, 0), (15, 0), (15, 20)])  # lines 0-3
sketch23.addConstraint(Sketcher.Constraint("Vertical", 0))
sketch23.addConstraint(Sketcher.Constraint("Horizontal", 1))
sketch23.addConstraint(Sketcher.Constraint("Vertical", 2))
sketch23.addConstraint(Sketcher.Constraint("Horizontal", 3))
sketch23.addConstraint(Sketcher.Constraint("Symmetric", 0, 2, 1, 2, -1, 1))
sketch23.addConstraint(Sketcher.Constraint("DistanceX", 1, 1, 1, 2, Q("30 mm")))
sketch23.addConstraint(Sketcher.Constraint("DistanceY", 0, 2, 0, 1, Q("20 mm")))
pad22 = doc.addObject("PartDesign::Pad", "Pad021")
body24.addObject(pad22)
pad22.Profile = sketch23
pad22.Length = 6
doc.recompute()

boolean19 = doc.addObject("PartDesign::Boolean", "Boolean018")
body24.addObject(boolean19)
boolean19.Type = "Cut"
boolean19.addObjects([body23])
doc.recompute()

boolean20 = doc.addObject("PartDesign::Boolean", "Boolean019")
body24.addObject(boolean20)
boolean20.Type = "Fuse"
boolean20.addObjects([body22])
doc.recompute()

chamfer7 = doc.addObject("PartDesign::Chamfer", "Chamfer006")
body24.addObject(chamfer7)
chamfer7.Base = (boolean20, edges_at(boolean20, [(-15, 20, 1.25), (15, 20, 1.25)]))
chamfer7.Size = 5
doc.recompute()

chamfer8 = doc.addObject("PartDesign::Chamfer", "Chamfer007")
body24.addObject(chamfer8)
chamfer8.Base = (chamfer7, edges_at(chamfer7, [(-15, 0, 3), (15, 0, 3)]))
chamfer8.Size = 2
doc.recompute()

chamfer9 = doc.addObject("PartDesign::Chamfer", "Chamfer008")
body24.addObject(chamfer9)
chamfer9.Base = (chamfer8, edges_at(chamfer8, [
    (-15, 8.5, 0),
    (-14, 1, 0),
    (0, 0, 0),
    (14, 1, 0),
    (15, 8.5, 0),
    (12.5, 17.5, 0),
    (0, 20, 0),
    (-12.5, 17.5, 0),
]))
chamfer9.Size = 1
doc.recompute()

boolean21 = doc.addObject("PartDesign::Boolean", "Boolean020")
body24.addObject(boolean21)
boolean21.Type = "Cut"
boolean21.addObjects([body21])

# Sketch on XY plane
sketch24 = doc.addObject("Sketcher::SketchObject", "Sketch023")
body24.addObject(sketch24)
sketch24.AttachmentSupport = (doc.getObject("XY_Plane023"), [""])
sketch24.MapMode = "FlatFace"
sketch24.AttachmentOffset = App.Placement(Vector(0, 0, 6.5), App.Rotation())
add_polygon(sketch24, [(-16, 21), (-16, 12), (16, 12), (16, 21)])  # lines 0-3
sketch24.addConstraint(Sketcher.Constraint("Vertical", 0))
sketch24.addConstraint(Sketcher.Constraint("Horizontal", 1))
sketch24.addConstraint(Sketcher.Constraint("Vertical", 2))
sketch24.addConstraint(Sketcher.Constraint("Horizontal", 3))
sketch24.addConstraint(Sketcher.Constraint("DistanceX", 1, 1, 1, 2, Q("32 mm")))
sketch24.addConstraint(Sketcher.Constraint("DistanceY", 0, 2, 0, 1, Q("9 mm")))
sketch24.addConstraint(Sketcher.Constraint("DistanceX", 0, 2, -1, 1, Q("16 mm")))
sketch24.addConstraint(Sketcher.Constraint("DistanceY", -1, 1, 0, 2, Q("12 mm")))
pocket2 = doc.addObject("PartDesign::Pocket", "Pocket001")
body24.addObject(pocket2)
pocket2.Profile = sketch24
pocket2.Length = 4

doc.recompute()
